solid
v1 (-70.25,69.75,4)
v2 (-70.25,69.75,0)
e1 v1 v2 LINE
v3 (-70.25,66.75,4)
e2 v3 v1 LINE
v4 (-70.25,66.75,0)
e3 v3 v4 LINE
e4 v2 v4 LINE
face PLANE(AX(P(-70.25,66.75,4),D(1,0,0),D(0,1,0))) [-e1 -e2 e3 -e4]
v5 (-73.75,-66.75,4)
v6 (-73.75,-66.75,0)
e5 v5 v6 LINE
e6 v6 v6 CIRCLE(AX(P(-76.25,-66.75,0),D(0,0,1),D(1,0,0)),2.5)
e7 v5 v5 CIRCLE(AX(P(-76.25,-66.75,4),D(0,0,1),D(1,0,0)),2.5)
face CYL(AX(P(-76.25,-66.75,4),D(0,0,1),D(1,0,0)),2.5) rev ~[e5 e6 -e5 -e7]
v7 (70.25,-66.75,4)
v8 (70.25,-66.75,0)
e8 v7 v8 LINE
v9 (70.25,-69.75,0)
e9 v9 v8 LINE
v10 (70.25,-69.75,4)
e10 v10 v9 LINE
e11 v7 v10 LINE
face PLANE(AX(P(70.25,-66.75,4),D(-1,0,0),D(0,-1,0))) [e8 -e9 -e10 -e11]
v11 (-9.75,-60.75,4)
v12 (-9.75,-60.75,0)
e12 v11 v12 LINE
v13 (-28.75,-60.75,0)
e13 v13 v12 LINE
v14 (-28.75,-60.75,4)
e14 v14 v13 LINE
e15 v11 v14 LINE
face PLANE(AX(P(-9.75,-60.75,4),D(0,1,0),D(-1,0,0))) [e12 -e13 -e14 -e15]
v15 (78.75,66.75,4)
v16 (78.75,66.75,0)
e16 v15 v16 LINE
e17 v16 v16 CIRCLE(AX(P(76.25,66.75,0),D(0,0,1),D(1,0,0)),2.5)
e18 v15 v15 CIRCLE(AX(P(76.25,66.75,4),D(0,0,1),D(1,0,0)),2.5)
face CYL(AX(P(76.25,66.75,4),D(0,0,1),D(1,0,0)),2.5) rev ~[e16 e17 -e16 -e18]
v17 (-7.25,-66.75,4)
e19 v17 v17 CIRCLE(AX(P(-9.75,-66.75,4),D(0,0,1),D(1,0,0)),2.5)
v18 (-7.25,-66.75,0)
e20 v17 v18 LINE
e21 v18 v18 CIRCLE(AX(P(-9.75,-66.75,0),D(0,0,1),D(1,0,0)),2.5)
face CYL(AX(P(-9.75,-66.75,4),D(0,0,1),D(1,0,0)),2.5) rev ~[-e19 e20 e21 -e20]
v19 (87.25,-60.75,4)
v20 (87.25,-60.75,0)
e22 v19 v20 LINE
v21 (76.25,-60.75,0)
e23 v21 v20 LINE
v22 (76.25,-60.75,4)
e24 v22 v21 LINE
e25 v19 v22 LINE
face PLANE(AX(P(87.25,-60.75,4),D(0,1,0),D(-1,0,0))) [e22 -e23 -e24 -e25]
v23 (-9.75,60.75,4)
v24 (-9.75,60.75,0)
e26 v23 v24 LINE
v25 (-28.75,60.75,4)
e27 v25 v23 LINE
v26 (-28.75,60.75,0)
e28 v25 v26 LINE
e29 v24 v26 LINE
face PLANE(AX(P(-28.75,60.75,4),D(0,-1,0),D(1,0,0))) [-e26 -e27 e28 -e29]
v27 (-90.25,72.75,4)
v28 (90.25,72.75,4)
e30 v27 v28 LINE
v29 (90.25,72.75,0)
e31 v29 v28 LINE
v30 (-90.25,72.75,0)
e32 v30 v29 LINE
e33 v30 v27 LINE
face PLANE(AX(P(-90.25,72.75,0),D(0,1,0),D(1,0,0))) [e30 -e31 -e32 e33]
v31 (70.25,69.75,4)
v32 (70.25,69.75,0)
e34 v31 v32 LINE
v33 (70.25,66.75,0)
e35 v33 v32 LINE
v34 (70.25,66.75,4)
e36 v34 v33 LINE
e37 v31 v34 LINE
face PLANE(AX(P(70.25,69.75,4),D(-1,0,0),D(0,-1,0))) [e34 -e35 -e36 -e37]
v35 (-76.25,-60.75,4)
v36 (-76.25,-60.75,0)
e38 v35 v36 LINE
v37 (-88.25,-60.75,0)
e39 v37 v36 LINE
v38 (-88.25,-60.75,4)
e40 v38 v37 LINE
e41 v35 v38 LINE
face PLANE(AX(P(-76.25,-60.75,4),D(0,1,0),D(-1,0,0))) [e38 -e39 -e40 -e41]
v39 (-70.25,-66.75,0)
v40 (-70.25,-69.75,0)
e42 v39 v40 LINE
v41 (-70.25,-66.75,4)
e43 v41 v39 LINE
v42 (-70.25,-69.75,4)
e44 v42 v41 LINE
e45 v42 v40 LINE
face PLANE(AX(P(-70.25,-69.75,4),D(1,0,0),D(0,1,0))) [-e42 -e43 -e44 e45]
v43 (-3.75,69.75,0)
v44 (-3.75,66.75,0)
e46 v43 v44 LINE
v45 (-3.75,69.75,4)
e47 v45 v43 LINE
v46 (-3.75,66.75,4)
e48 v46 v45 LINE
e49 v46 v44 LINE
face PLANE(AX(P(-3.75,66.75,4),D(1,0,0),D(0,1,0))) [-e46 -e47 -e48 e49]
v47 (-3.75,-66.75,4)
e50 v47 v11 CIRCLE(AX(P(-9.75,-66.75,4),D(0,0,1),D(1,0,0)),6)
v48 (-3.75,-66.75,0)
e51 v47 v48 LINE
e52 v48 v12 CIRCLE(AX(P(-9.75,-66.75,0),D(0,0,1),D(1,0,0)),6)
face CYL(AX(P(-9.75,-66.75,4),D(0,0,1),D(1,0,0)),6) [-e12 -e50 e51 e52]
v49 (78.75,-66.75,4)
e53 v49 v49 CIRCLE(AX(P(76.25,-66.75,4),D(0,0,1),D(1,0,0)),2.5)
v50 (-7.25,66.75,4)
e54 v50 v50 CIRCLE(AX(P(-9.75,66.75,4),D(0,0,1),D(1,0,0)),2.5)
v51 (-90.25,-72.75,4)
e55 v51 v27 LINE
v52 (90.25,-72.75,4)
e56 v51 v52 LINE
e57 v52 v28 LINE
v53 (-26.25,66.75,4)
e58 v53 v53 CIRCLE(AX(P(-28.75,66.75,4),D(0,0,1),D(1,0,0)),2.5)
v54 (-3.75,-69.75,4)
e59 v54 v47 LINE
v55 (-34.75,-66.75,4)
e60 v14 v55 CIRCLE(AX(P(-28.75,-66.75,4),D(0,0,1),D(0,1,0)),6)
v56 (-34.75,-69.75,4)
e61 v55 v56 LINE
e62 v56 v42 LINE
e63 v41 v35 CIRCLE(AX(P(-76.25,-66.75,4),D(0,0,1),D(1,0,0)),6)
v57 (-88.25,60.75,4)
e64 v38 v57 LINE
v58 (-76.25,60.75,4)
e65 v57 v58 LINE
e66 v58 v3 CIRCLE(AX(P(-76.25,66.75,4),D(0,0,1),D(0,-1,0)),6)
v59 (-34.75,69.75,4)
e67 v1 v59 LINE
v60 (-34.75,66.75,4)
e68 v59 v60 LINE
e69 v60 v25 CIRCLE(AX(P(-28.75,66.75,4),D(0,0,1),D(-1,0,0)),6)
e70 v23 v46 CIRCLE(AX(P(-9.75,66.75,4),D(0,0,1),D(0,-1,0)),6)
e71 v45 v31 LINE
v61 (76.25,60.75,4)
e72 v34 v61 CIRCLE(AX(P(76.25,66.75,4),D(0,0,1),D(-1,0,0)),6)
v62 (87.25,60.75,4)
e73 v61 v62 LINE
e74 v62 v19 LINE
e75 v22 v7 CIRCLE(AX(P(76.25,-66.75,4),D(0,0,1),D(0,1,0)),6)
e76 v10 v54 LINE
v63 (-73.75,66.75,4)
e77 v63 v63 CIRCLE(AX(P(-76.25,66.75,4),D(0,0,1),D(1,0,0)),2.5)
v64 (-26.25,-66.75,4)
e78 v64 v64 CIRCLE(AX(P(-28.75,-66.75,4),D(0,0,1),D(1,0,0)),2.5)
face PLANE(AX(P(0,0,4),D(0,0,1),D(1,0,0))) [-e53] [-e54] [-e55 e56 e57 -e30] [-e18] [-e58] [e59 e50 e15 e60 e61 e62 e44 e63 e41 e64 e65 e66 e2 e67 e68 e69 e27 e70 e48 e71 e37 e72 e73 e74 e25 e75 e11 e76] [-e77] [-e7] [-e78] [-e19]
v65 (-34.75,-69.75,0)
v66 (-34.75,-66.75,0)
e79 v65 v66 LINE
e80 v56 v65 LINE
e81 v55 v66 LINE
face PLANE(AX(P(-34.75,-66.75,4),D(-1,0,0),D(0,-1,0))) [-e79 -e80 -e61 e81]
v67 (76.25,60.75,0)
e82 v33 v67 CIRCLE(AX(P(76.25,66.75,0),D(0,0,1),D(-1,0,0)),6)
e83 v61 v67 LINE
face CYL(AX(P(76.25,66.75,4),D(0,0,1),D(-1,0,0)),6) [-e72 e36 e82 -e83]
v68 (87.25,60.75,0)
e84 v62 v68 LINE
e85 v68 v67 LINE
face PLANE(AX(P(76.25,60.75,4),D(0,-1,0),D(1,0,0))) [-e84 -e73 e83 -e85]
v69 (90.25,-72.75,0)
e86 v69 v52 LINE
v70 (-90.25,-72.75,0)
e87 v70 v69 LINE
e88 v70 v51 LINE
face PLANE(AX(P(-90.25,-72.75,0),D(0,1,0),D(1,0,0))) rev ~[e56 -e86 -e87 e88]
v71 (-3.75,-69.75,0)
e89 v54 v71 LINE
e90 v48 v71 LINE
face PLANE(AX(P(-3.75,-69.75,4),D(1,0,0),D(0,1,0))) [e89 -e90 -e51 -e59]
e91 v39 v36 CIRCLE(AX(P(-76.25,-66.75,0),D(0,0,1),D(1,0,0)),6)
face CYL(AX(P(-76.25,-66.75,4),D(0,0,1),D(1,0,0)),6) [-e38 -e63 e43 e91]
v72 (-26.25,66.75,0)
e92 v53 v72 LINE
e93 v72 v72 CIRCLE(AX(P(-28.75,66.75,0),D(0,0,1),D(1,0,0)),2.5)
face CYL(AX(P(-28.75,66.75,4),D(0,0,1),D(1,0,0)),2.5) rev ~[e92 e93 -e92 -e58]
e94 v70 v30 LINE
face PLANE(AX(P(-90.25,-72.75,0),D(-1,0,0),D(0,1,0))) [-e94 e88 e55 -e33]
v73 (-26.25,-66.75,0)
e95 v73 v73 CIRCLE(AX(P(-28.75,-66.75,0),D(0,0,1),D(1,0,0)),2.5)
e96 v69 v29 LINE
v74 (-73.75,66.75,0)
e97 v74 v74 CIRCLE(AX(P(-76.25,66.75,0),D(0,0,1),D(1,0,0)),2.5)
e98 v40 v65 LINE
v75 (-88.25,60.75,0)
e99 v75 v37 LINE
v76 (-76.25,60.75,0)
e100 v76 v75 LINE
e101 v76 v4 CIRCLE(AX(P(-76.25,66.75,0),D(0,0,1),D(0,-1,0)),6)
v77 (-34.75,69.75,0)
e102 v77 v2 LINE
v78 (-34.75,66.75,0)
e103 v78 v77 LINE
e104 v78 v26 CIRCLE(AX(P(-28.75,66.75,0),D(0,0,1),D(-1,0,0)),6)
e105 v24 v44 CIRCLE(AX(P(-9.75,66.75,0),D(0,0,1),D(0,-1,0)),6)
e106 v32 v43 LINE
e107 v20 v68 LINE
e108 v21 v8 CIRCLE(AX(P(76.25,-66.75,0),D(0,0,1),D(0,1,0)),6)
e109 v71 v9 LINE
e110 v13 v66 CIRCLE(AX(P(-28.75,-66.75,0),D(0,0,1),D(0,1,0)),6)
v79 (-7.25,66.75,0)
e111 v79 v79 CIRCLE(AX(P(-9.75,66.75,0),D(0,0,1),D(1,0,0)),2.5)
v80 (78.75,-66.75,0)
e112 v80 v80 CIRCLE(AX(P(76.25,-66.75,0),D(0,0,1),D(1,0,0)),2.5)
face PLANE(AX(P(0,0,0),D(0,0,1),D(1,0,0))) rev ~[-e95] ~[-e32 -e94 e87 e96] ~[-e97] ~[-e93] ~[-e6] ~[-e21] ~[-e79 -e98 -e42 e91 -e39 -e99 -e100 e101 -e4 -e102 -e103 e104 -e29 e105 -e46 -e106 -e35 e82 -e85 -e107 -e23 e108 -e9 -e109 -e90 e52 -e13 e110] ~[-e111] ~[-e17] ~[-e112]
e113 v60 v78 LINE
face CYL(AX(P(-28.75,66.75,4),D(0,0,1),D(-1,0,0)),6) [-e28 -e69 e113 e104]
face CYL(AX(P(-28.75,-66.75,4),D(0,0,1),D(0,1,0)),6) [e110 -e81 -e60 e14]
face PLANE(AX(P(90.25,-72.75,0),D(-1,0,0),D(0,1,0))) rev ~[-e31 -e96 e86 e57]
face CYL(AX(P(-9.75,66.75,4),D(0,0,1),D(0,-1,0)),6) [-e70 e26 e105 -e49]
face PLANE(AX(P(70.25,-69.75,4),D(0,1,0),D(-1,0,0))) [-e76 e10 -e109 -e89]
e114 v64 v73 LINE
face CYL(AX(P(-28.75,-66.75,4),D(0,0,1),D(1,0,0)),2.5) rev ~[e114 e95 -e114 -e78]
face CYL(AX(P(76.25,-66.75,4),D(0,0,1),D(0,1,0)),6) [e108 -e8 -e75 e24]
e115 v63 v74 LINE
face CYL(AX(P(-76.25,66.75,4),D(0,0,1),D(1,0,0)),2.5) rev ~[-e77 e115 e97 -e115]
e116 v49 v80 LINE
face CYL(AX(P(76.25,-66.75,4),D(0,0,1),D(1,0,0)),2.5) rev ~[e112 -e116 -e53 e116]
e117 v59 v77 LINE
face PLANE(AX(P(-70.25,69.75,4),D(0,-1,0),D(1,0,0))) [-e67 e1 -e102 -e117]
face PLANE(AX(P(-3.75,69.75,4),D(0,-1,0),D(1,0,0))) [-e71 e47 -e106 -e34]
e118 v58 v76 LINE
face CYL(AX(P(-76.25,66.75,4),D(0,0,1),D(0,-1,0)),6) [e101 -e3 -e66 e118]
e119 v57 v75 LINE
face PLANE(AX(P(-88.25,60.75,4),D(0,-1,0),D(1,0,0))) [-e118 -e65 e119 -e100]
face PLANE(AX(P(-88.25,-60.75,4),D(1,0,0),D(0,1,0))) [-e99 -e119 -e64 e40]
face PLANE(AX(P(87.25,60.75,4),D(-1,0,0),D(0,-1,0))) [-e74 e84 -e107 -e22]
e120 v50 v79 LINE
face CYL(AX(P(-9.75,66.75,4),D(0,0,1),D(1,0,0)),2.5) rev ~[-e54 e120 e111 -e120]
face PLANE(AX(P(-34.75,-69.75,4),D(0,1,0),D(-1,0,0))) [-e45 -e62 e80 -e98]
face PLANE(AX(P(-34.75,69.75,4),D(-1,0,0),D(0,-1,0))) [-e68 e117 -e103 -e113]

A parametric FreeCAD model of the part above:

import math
import FreeCAD as App
import Part
import Sketcher

doc = App.newDocument("Part")
body = doc.addObject("PartDesign::Body", "Body")

sketch1 = body.newObject("Sketcher::SketchObject", "Sketch")
sketch1.AttachmentSupport = (doc.getObject("XY_Plane"), [""])
sketch1.MapMode = "FlatFace"
sketch1.addGeometry([
    Part.LineSegment(App.Vector(-90, 73, 0), App.Vector(-90, -73, 0)),
    Part.LineSegment(App.Vector(-90, -73, 0), App.Vector(90, -73, 0)),
    Part.LineSegment(App.Vector(90, -73, 0), App.Vector(90, 73, 0)),
    Part.LineSegment(App.Vector(90, 73, 0), App.Vector(-90, 73, 0)),
], False)
sketch1.addConstraint([
    Sketcher.Constraint("Coincident", 0, 2, 1, 1),
    Sketcher.Constraint("Coincident", 1, 2, 2, 1),
    Sketcher.Constraint("Coincident", 2, 2, 3, 1),
    Sketcher.Constraint("Coincident", 3, 2, 0, 1),
    Sketcher.Constraint("Vertical", 0),
    Sketcher.Constraint("Horizontal", 1),
    Sketcher.Constraint("Vertical", 2),
    Sketcher.Constraint("Horizontal", 3),
    Sketcher.Constraint("Symmetric", 0, 2, 2, 2, -1, 1),
    Sketcher.Constraint("DistanceX", 1, 1, 1, 2, 180.5),
    Sketcher.Constraint("DistanceY", 0, 2, 0, 1, 145.5),
])
pad1 = body.newObject("PartDesign::Pad", "Pad")
pad1.Profile = sketch1
pad1.Length = 4

sketch2 = body.newObject("Sketcher::SketchObject", "Sketch001")
sketch2.AttachmentSupport = (doc.getObject("XY_Plane"), [""])
sketch2.MapMode = "FlatFace"
sketch2.AttachmentOffset = App.Placement(App.Vector(0, 0, 4), App.Rotation())
sketch2.addGeometry(Part.Circle(App.Vector(-76.2, 66.8, 0), App.Vector(0, 0, 1), 2.5), False)
sketch2.addConstraint([
    Sketcher.Constraint("Diameter", 0, 5.0),
    Sketcher.Constraint("DistanceX", 0, 3, -1, 1, 76.25),
    Sketcher.Constraint("DistanceY", -1, 1, 0, 3, 66.75),
])
pocket1 = body.newObject("PartDesign::Pocket", "Pocket")
pocket1.Profile = sketch2
pocket1.Type = "UpToFirst"

sketch3 = body.newObject("Sketcher::SketchObject", "Sketch002")
sketch3.AttachmentSupport = (doc.getObject("XY_Plane"), [""])
sketch3.MapMode = "FlatFace"
sketch3.AttachmentOffset = App.Placement(App.Vector(0, 0, 4), App.Rotation())
sketch3.addGeometry(Part.Circle(App.Vector(-28.8, 66.8, 0), App.Vector(0, 0, 1), 2.5), False)
sketch3.addConstraint([
    Sketcher.Constraint("Diameter", 0, 5.0),
    Sketcher.Constraint("DistanceX", 0, 3, -1, 1, 28.75),
    Sketcher.Constraint("DistanceY", -1, 1, 0, 3, 66.75),
])
pocket2 = body.newObject("PartDesign::Pocket", "Pocket001")
pocket2.Profile = sketch3
pocket2.Type = "UpToFirst"

sketch4 = body.newObject("Sketcher::SketchObject", "Sketch003")
sketch4.AttachmentSupport = (doc.getObject("XY_Plane"), [""])
sketch4.MapMode = "FlatFace"
sketch4.AttachmentOffset = App.Placement(App.Vector(0, 0, 4), App.Rotation())
sketch4.addGeometry(Part.Circle(App.Vector(-9.8, 66.8, 0), App.Vector(0, 0, 1), 2.5), False)
sketch4.addConstraint([
    Sketcher.Constraint("Diameter", 0, 5.0),
    Sketcher.Constraint("DistanceX", 0, 3, -1, 1, 9.75),
    Sketcher.Constraint("DistanceY", -1, 1, 0, 3, 66.75),
])
pocket3 = body.newObject("PartDesign::Pocket", "Pocket002")
pocket3.Profile = sketch4
pocket3.Type = "UpToFirst"

sketch5 = body.newObject("Sketcher::SketchObject", "Sketch004")
sketch5.AttachmentSupport = (doc.getObject("XY_Plane"), [""])
sketch5.MapMode = "FlatFace"
sketch5.AttachmentOffset = App.Placement(App.Vector(0, 0, 4), App.Rotation())
sketch5.addGeometry(Part.Circle(App.Vector(76.2, 66.8, 0), App.Vector(0, 0, 1), 2.5), False)
sketch5.addConstraint([
    Sketcher.Constraint("Diameter", 0, 5.0),
    Sketcher.Constraint("DistanceX", -1, 1, 0, 3, 76.25),
    Sketcher.Constraint("DistanceY", -1, 1, 0, 3, 66.75),
])
pocket4 = body.newObject("PartDesign::Pocket", "Pocket003")
pocket4.Profile = sketch5
pocket4.Type = "UpToFirst"

sketch6 = body.newObject("Sketcher::SketchObject", "Sketch005")
sketch6.AttachmentSupport = (doc.getObject("XY_Plane"), [""])
sketch6.MapMode = "FlatFace"
sketch6.AttachmentOffset = App.Placement(App.Vector(0, 0, 4), App.Rotation())
sketch6.addGeometry(Part.Circle(App.Vector(76.2, -66.8, 0), App.Vector(0, 0, 1), 2.5), False)
sketch6.addConstraint([
    Sketcher.Constraint("Diameter", 0, 5.0),
    Sketcher.Constraint("DistanceX", -1, 1, 0, 3, 76.25),
    Sketcher.Constraint("DistanceY", 0, 3, -1, 1, 66.75),
])
pocket5 = body.newObject("PartDesign::Pocket", "Pocket004")
pocket5.Profile = sketch6
pocket5.Type = "UpToFirst"

sketch7 = body.newObject("Sketcher::SketchObject", "Sketch006")
sketch7.AttachmentSupport = (doc.getObject("XY_Plane"), [""])
sketch7.MapMode = "FlatFace"
sketch7.AttachmentOffset = App.Placement(App.Vector(0, 0, 4), App.Rotation())
sketch7.addGeometry(Part.Circle(App.Vector(-9.8, -66.8, 0), App.Vector(0, 0, 1), 2.5), False)
sketch7.addConstraint([
    Sketcher.Constraint("Diameter", 0, 5.0),
    Sketcher.Constraint("DistanceX", 0, 3, -1, 1, 9.75),
    Sketcher.Constraint("DistanceY", 0, 3, -1, 1, 66.75),
])
pocket6 = body.newObject("PartDesign::Pocket", "Pocket005")
pocket6.Profile = sketch7
pocket6.Type = "UpToFirst"

sketch8 = body.newObject("Sketcher::SketchObject", "Sketch007")
sketch8.AttachmentSupport = (doc.getObject("XY_Plane"), [""])
sketch8.MapMode = "FlatFace"
sketch8.AttachmentOffset = App.Placement(App.Vector(0, 0, 4), App.Rotation())
sketch8.addGeometry(Part.Circle(App.Vector(-28.8, -66.8, 0), App.Vector(0, 0, 1), 2.5), False)
sketch8.addConstraint([
    Sketcher.Constraint("Diameter", 0, 5.0),
    Sketcher.Constraint("DistanceX", 0, 3, -1, 1, 28.75),
    Sketcher.Constraint("DistanceY", 0, 3, -1, 1, 66.75),
])
pocket7 = body.newObject("PartDesign::Pocket", "Pocket006")
pocket7.Profile = sketch8
pocket7.Type = "UpToFirst"

sketch9 = body.newObject("Sketcher::SketchObject", "Sketch008")
sketch9.AttachmentSupport = (doc.getObject("XY_Plane"), [""])
sketch9.MapMode = "FlatFace"
sketch9.AttachmentOffset = App.Placement(App.Vector(0, 0, 4), App.Rotation())
sketch9.addGeometry(Part.Circle(App.Vector(-76.2, -66.8, 0), App.Vector(0, 0, 1), 2.5), False)
sketch9.addConstraint([
    Sketcher.Constraint("Diameter", 0, 5.0),
    Sketcher.Constraint("DistanceX", 0, 3, -1, 1, 76.25),
    Sketcher.Constraint("DistanceY", 0, 3, -1, 1, 66.75),
])
pocket8 = body.newObject("PartDesign::Pocket", "Pocket007")
pocket8.Profile = sketch9
pocket8.Type = "UpToFirst"

sketch10 = body.newObject("Sketcher::SketchObject", "Sketch009")
sketch10.AttachmentSupport = (doc.getObject("XY_Plane"), [""])
sketch10.MapMode = "FlatFace"
sketch10.AttachmentOffset = App.Placement(App.Vector(0, 0, 4), App.Rotation())
sketch10.addGeometry([
    Part.LineSegment(App.Vector(-34.8, 69.8, 0), App.Vector(-70.2, 69.8, 0)),
    Part.LineSegment(App.Vector(-70.2, 69.8, 0), App.Vector(-70.2, 66.8, 0)),
    Part.ArcOfCircle(Part.Circle(App.Vector(-76.2, 66.8, 0), App.Vector(0, 0, 1), 6), math.radians(-90), math.radians(0)),
    Part.LineSegment(App.Vector(-76.2, 60.8, 0), App.Vector(-88.2, 60.8, 0)),
    Part.LineSegment(App.Vector(-88.2, 60.8, 0), App.Vector(-88.2, -60.8, 0)),
    Part.LineSegment(App.Vector(-88.2, -60.8, 0), App.Vector(-76.2, -60.8, 0)),
    Part.ArcOfCircle(Part.Circle(App.Vector(-76.2, -66.8, 0), App.Vector(0, 0, 1), 6), math.radians(0), math.radians(90)),
    Part.LineSegment(App.Vector(-70.2, -66.8, 0), App.Vector(-70.2, -69.8, 0)),
    Part.LineSegment(App.Vector(-70.2, -69.8, 0), App.Vector(-34.8, -69.8, 0)),
    Part.LineSegment(App.Vector(-34.8, -69.8, 0), App.Vector(-34.8, -66.8, 0)),
    Part.ArcOfCircle(Part.Circle(App.Vector(-28.8, -66.8, 0), App.Vector(0, 0, 1), 6), math.radians(90), math.radians(180)),
    Part.LineSegment(App.Vector(-28.8, -60.8, 0), App.Vector(-9.8, -60.8, 0)),
    Part.ArcOfCircle(Part.Circle(App.Vector(-9.8, -66.8, 0), App.Vector(0, 0, 1), 6), math.radians(0), math.radians(90)),
    Part.LineSegment(App.Vector(-3.8, -66.8, 0), App.Vector(-3.8, -69.8, 0)),
    Part.LineSegment(App.Vector(-3.8, -69.8, 0), App.Vector(70.2, -69.8, 0)),
    Part.LineSegment(App.Vector(70.2, -69.8, 0), App.Vector(70.2, -66.8, 0)),
    Part.ArcOfCircle(Part.Circle(App.Vector(76.2, -66.8, 0), App.Vector(0, 0, 1), 6), math.radians(90), math.radians(180)),
    Part.LineSegment(App.Vector(76.2, -60.8, 0), App.Vector(87.2, -60.8, 0)),
    Part.LineSegment(App.Vector(87.2, -60.8, 0), App.Vector(87.2, 60.8, 0)),
    Part.LineSegment(App.Vector(87.2, 60.8, 0), App.Vector(76.2, 60.8, 0)),
    Part.ArcOfCircle(Part.Circle(App.Vector(76.2, 66.8, 0), App.Vector(0, 0, 1), 6), math.radians(180), math.radians(270)),
    Part.LineSegment(App.Vector(70.2, 66.8, 0), App.Vector(70.2, 69.8, 0)),
    Part.LineSegment(App.Vector(70.2, 69.8, 0), App.Vector(-3.8, 69.8, 0)),
    Part.LineSegment(App.Vector(-3.8, 69.8, 0), App.Vector(-3.8, 66.8, 0)),
    Part.ArcOfCircle(Part.Circle(App.Vector(-9.8, 66.8, 0), App.Vector(0, 0, 1), 6), math.radians(-90), math.radians(0)),
    Part.LineSegment(App.Vector(-9.8, 60.8, 0), App.Vector(-28.8, 60.8, 0)),
    Part.ArcOfCircle(Part.Circle(App.Vector(-28.8, 66.8, 0), App.Vector(0, 0, 1), 6), math.radians(180), math.radians(270)),
    Part.LineSegment(App.Vector(-34.8, 66.8, 0), App.Vector(-34.8, 69.8, 0)),
], False)
sketch10.addConstraint([
    Sketcher.Constraint("Coincident", 0, 2, 1, 1),
    Sketcher.Constraint("Tangent", 1, 2, 2, 2),
    Sketcher.Constraint("Tangent", 2, 1, 3, 1),
    Sketcher.Constraint("Coincident", 3, 2, 4, 1),
    Sketcher.Constraint("Coincident", 4, 2, 5, 1),
    Sketcher.Constraint("Tangent", 5, 2, 6, 2),
    Sketcher.Constraint("Tangent", 6, 1, 7, 1),
    Sketcher.Constraint("Coincident", 7, 2, 8, 1),
    Sketcher.Constraint("Coincident", 8, 2, 9, 1),
    Sketcher.Constraint("Tangent", 9, 2, 10, 2),
    Sketcher.Constraint("Tangent", 10, 1, 11, 1),
    Sketcher.Constraint("Tangent", 11, 2, 12, 2),
    Sketcher.Constraint("Tangent", 12, 1, 13, 1),
    Sketcher.Constraint("Coincident", 13, 2, 14, 1),
    Sketcher.Constraint("Coincident", 14, 2, 15, 1),
    Sketcher.Constraint("Tangent", 15, 2, 16, 2),
    Sketcher.Constraint("Tangent", 16, 1, 17, 1),
    Sketcher.Constraint("Coincident", 17, 2, 18, 1),
    Sketcher.Constraint("Coincident", 18, 2, 19, 1),
    Sketcher.Constraint("Tangent", 19, 2, 20, 2),
    Sketcher.Constraint("Tangent", 20, 1, 21, 1),
    Sketcher.Constraint("Coincident", 21, 2, 22, 1),
    Sketcher.Constraint("Coincident", 22, 2, 23, 1),
    Sketcher.Constraint("Tangent", 23, 2, 24, 2),
    Sketcher.Constraint("Tangent", 24, 1, 25, 1),
    Sketcher.Constraint("Tangent", 25, 2, 26, 2),
    Sketcher.Constraint("Tangent", 26, 1, 27, 1),
    Sketcher.Constraint("Coincident", 27, 2, 0, 1),
    Sketcher.Constraint("Horizontal", 0),
    Sketcher.Constraint("Vertical", 1),
    Sketcher.Constraint("Horizontal", 3),
    Sketcher.Constraint("Vertical", 4),
    Sketcher.Constraint("Horizontal", 5),
    Sketcher.Constraint("Vertical", 7),
    Sketcher.Constraint("Horizontal", 8),
    Sketcher.Constraint("Vertical", 9),
    Sketcher.Constraint("Horizontal", 11),
    Sketcher.Constraint("Vertical", 13),
    Sketcher.Constraint("Horizontal", 14),
    Sketcher.Constraint("Vertical", 15),
    Sketcher.Constraint("Horizontal", 17),
    Sketcher.Constraint("Vertical", 18),
    Sketcher.Constraint("Horizontal", 19),
    Sketcher.Constraint("Vertical", 21),
    Sketcher.Constraint("Horizontal", 22),
    Sketcher.Constraint("Vertical", 23),
    Sketcher.Constraint("Horizontal", 25),
    Sketcher.Constraint("Vertical", 27),
    Sketcher.Constraint("Equal", 2, 6),
    Sketcher.Constraint("Equal", 6, 10),
    Sketcher.Constraint("Equal", 10, 12),
    Sketcher.Constraint("Equal", 12, 16),
    Sketcher.Constraint("Equal", 16, 20),
    Sketcher.Constraint("Equal", 20, 24),
    Sketcher.Constraint("Equal", 24, 26),
    Sketcher.Constraint("Symmetric", 2, 3, 16, 3, -1, 1),
    Sketcher.Constraint("Symmetric", 6, 3, 20, 3, -1, 1),
    Sketcher.Constraint("Symmetric", 6, 3, 16, 3, -2),
    Sketcher.Constraint("Symmetric", 12, 3, 24, 3, -1),
    Sketcher.Constraint("Symmetric", 8, 2, 27, 2, -1),
    Sketcher.Constraint("Horizontal", 6, 3, 10, 3),
    Sketcher.Constraint("Horizontal", 8, 2, 13, 2),
    Sketcher.Constraint("Horizontal", 0, 2, 21, 2),
    Sketcher.Constraint("Radius", 2, 6.0),
    Sketcher.Constraint("DistanceX", 3, 2, 3, 1, 12.0),
    Sketcher.Constraint("DistanceX", 11, 1, 11, 2, 19.0),
    Sketcher.Constraint("DistanceX", 14, 1, 14, 2, 74.0),
    Sketcher.Constraint("DistanceX", 17, 1, 17, 2, 11.0),
    Sketcher.Constraint("DistanceY", 1, 2, 1, 1, 3.0),
    Sketcher.Constraint("DistanceX", 0, 2, 0, 1, 35.5),
    Sketcher.Constraint("DistanceY", 4, 2, 4, 1, 121.5),
])
pocket9 = body.newObject("PartDesign::Pocket", "Pocket008")
pocket9.Profile = sketch10
pocket9.Type = "UpToFirst"

doc.recompute()
